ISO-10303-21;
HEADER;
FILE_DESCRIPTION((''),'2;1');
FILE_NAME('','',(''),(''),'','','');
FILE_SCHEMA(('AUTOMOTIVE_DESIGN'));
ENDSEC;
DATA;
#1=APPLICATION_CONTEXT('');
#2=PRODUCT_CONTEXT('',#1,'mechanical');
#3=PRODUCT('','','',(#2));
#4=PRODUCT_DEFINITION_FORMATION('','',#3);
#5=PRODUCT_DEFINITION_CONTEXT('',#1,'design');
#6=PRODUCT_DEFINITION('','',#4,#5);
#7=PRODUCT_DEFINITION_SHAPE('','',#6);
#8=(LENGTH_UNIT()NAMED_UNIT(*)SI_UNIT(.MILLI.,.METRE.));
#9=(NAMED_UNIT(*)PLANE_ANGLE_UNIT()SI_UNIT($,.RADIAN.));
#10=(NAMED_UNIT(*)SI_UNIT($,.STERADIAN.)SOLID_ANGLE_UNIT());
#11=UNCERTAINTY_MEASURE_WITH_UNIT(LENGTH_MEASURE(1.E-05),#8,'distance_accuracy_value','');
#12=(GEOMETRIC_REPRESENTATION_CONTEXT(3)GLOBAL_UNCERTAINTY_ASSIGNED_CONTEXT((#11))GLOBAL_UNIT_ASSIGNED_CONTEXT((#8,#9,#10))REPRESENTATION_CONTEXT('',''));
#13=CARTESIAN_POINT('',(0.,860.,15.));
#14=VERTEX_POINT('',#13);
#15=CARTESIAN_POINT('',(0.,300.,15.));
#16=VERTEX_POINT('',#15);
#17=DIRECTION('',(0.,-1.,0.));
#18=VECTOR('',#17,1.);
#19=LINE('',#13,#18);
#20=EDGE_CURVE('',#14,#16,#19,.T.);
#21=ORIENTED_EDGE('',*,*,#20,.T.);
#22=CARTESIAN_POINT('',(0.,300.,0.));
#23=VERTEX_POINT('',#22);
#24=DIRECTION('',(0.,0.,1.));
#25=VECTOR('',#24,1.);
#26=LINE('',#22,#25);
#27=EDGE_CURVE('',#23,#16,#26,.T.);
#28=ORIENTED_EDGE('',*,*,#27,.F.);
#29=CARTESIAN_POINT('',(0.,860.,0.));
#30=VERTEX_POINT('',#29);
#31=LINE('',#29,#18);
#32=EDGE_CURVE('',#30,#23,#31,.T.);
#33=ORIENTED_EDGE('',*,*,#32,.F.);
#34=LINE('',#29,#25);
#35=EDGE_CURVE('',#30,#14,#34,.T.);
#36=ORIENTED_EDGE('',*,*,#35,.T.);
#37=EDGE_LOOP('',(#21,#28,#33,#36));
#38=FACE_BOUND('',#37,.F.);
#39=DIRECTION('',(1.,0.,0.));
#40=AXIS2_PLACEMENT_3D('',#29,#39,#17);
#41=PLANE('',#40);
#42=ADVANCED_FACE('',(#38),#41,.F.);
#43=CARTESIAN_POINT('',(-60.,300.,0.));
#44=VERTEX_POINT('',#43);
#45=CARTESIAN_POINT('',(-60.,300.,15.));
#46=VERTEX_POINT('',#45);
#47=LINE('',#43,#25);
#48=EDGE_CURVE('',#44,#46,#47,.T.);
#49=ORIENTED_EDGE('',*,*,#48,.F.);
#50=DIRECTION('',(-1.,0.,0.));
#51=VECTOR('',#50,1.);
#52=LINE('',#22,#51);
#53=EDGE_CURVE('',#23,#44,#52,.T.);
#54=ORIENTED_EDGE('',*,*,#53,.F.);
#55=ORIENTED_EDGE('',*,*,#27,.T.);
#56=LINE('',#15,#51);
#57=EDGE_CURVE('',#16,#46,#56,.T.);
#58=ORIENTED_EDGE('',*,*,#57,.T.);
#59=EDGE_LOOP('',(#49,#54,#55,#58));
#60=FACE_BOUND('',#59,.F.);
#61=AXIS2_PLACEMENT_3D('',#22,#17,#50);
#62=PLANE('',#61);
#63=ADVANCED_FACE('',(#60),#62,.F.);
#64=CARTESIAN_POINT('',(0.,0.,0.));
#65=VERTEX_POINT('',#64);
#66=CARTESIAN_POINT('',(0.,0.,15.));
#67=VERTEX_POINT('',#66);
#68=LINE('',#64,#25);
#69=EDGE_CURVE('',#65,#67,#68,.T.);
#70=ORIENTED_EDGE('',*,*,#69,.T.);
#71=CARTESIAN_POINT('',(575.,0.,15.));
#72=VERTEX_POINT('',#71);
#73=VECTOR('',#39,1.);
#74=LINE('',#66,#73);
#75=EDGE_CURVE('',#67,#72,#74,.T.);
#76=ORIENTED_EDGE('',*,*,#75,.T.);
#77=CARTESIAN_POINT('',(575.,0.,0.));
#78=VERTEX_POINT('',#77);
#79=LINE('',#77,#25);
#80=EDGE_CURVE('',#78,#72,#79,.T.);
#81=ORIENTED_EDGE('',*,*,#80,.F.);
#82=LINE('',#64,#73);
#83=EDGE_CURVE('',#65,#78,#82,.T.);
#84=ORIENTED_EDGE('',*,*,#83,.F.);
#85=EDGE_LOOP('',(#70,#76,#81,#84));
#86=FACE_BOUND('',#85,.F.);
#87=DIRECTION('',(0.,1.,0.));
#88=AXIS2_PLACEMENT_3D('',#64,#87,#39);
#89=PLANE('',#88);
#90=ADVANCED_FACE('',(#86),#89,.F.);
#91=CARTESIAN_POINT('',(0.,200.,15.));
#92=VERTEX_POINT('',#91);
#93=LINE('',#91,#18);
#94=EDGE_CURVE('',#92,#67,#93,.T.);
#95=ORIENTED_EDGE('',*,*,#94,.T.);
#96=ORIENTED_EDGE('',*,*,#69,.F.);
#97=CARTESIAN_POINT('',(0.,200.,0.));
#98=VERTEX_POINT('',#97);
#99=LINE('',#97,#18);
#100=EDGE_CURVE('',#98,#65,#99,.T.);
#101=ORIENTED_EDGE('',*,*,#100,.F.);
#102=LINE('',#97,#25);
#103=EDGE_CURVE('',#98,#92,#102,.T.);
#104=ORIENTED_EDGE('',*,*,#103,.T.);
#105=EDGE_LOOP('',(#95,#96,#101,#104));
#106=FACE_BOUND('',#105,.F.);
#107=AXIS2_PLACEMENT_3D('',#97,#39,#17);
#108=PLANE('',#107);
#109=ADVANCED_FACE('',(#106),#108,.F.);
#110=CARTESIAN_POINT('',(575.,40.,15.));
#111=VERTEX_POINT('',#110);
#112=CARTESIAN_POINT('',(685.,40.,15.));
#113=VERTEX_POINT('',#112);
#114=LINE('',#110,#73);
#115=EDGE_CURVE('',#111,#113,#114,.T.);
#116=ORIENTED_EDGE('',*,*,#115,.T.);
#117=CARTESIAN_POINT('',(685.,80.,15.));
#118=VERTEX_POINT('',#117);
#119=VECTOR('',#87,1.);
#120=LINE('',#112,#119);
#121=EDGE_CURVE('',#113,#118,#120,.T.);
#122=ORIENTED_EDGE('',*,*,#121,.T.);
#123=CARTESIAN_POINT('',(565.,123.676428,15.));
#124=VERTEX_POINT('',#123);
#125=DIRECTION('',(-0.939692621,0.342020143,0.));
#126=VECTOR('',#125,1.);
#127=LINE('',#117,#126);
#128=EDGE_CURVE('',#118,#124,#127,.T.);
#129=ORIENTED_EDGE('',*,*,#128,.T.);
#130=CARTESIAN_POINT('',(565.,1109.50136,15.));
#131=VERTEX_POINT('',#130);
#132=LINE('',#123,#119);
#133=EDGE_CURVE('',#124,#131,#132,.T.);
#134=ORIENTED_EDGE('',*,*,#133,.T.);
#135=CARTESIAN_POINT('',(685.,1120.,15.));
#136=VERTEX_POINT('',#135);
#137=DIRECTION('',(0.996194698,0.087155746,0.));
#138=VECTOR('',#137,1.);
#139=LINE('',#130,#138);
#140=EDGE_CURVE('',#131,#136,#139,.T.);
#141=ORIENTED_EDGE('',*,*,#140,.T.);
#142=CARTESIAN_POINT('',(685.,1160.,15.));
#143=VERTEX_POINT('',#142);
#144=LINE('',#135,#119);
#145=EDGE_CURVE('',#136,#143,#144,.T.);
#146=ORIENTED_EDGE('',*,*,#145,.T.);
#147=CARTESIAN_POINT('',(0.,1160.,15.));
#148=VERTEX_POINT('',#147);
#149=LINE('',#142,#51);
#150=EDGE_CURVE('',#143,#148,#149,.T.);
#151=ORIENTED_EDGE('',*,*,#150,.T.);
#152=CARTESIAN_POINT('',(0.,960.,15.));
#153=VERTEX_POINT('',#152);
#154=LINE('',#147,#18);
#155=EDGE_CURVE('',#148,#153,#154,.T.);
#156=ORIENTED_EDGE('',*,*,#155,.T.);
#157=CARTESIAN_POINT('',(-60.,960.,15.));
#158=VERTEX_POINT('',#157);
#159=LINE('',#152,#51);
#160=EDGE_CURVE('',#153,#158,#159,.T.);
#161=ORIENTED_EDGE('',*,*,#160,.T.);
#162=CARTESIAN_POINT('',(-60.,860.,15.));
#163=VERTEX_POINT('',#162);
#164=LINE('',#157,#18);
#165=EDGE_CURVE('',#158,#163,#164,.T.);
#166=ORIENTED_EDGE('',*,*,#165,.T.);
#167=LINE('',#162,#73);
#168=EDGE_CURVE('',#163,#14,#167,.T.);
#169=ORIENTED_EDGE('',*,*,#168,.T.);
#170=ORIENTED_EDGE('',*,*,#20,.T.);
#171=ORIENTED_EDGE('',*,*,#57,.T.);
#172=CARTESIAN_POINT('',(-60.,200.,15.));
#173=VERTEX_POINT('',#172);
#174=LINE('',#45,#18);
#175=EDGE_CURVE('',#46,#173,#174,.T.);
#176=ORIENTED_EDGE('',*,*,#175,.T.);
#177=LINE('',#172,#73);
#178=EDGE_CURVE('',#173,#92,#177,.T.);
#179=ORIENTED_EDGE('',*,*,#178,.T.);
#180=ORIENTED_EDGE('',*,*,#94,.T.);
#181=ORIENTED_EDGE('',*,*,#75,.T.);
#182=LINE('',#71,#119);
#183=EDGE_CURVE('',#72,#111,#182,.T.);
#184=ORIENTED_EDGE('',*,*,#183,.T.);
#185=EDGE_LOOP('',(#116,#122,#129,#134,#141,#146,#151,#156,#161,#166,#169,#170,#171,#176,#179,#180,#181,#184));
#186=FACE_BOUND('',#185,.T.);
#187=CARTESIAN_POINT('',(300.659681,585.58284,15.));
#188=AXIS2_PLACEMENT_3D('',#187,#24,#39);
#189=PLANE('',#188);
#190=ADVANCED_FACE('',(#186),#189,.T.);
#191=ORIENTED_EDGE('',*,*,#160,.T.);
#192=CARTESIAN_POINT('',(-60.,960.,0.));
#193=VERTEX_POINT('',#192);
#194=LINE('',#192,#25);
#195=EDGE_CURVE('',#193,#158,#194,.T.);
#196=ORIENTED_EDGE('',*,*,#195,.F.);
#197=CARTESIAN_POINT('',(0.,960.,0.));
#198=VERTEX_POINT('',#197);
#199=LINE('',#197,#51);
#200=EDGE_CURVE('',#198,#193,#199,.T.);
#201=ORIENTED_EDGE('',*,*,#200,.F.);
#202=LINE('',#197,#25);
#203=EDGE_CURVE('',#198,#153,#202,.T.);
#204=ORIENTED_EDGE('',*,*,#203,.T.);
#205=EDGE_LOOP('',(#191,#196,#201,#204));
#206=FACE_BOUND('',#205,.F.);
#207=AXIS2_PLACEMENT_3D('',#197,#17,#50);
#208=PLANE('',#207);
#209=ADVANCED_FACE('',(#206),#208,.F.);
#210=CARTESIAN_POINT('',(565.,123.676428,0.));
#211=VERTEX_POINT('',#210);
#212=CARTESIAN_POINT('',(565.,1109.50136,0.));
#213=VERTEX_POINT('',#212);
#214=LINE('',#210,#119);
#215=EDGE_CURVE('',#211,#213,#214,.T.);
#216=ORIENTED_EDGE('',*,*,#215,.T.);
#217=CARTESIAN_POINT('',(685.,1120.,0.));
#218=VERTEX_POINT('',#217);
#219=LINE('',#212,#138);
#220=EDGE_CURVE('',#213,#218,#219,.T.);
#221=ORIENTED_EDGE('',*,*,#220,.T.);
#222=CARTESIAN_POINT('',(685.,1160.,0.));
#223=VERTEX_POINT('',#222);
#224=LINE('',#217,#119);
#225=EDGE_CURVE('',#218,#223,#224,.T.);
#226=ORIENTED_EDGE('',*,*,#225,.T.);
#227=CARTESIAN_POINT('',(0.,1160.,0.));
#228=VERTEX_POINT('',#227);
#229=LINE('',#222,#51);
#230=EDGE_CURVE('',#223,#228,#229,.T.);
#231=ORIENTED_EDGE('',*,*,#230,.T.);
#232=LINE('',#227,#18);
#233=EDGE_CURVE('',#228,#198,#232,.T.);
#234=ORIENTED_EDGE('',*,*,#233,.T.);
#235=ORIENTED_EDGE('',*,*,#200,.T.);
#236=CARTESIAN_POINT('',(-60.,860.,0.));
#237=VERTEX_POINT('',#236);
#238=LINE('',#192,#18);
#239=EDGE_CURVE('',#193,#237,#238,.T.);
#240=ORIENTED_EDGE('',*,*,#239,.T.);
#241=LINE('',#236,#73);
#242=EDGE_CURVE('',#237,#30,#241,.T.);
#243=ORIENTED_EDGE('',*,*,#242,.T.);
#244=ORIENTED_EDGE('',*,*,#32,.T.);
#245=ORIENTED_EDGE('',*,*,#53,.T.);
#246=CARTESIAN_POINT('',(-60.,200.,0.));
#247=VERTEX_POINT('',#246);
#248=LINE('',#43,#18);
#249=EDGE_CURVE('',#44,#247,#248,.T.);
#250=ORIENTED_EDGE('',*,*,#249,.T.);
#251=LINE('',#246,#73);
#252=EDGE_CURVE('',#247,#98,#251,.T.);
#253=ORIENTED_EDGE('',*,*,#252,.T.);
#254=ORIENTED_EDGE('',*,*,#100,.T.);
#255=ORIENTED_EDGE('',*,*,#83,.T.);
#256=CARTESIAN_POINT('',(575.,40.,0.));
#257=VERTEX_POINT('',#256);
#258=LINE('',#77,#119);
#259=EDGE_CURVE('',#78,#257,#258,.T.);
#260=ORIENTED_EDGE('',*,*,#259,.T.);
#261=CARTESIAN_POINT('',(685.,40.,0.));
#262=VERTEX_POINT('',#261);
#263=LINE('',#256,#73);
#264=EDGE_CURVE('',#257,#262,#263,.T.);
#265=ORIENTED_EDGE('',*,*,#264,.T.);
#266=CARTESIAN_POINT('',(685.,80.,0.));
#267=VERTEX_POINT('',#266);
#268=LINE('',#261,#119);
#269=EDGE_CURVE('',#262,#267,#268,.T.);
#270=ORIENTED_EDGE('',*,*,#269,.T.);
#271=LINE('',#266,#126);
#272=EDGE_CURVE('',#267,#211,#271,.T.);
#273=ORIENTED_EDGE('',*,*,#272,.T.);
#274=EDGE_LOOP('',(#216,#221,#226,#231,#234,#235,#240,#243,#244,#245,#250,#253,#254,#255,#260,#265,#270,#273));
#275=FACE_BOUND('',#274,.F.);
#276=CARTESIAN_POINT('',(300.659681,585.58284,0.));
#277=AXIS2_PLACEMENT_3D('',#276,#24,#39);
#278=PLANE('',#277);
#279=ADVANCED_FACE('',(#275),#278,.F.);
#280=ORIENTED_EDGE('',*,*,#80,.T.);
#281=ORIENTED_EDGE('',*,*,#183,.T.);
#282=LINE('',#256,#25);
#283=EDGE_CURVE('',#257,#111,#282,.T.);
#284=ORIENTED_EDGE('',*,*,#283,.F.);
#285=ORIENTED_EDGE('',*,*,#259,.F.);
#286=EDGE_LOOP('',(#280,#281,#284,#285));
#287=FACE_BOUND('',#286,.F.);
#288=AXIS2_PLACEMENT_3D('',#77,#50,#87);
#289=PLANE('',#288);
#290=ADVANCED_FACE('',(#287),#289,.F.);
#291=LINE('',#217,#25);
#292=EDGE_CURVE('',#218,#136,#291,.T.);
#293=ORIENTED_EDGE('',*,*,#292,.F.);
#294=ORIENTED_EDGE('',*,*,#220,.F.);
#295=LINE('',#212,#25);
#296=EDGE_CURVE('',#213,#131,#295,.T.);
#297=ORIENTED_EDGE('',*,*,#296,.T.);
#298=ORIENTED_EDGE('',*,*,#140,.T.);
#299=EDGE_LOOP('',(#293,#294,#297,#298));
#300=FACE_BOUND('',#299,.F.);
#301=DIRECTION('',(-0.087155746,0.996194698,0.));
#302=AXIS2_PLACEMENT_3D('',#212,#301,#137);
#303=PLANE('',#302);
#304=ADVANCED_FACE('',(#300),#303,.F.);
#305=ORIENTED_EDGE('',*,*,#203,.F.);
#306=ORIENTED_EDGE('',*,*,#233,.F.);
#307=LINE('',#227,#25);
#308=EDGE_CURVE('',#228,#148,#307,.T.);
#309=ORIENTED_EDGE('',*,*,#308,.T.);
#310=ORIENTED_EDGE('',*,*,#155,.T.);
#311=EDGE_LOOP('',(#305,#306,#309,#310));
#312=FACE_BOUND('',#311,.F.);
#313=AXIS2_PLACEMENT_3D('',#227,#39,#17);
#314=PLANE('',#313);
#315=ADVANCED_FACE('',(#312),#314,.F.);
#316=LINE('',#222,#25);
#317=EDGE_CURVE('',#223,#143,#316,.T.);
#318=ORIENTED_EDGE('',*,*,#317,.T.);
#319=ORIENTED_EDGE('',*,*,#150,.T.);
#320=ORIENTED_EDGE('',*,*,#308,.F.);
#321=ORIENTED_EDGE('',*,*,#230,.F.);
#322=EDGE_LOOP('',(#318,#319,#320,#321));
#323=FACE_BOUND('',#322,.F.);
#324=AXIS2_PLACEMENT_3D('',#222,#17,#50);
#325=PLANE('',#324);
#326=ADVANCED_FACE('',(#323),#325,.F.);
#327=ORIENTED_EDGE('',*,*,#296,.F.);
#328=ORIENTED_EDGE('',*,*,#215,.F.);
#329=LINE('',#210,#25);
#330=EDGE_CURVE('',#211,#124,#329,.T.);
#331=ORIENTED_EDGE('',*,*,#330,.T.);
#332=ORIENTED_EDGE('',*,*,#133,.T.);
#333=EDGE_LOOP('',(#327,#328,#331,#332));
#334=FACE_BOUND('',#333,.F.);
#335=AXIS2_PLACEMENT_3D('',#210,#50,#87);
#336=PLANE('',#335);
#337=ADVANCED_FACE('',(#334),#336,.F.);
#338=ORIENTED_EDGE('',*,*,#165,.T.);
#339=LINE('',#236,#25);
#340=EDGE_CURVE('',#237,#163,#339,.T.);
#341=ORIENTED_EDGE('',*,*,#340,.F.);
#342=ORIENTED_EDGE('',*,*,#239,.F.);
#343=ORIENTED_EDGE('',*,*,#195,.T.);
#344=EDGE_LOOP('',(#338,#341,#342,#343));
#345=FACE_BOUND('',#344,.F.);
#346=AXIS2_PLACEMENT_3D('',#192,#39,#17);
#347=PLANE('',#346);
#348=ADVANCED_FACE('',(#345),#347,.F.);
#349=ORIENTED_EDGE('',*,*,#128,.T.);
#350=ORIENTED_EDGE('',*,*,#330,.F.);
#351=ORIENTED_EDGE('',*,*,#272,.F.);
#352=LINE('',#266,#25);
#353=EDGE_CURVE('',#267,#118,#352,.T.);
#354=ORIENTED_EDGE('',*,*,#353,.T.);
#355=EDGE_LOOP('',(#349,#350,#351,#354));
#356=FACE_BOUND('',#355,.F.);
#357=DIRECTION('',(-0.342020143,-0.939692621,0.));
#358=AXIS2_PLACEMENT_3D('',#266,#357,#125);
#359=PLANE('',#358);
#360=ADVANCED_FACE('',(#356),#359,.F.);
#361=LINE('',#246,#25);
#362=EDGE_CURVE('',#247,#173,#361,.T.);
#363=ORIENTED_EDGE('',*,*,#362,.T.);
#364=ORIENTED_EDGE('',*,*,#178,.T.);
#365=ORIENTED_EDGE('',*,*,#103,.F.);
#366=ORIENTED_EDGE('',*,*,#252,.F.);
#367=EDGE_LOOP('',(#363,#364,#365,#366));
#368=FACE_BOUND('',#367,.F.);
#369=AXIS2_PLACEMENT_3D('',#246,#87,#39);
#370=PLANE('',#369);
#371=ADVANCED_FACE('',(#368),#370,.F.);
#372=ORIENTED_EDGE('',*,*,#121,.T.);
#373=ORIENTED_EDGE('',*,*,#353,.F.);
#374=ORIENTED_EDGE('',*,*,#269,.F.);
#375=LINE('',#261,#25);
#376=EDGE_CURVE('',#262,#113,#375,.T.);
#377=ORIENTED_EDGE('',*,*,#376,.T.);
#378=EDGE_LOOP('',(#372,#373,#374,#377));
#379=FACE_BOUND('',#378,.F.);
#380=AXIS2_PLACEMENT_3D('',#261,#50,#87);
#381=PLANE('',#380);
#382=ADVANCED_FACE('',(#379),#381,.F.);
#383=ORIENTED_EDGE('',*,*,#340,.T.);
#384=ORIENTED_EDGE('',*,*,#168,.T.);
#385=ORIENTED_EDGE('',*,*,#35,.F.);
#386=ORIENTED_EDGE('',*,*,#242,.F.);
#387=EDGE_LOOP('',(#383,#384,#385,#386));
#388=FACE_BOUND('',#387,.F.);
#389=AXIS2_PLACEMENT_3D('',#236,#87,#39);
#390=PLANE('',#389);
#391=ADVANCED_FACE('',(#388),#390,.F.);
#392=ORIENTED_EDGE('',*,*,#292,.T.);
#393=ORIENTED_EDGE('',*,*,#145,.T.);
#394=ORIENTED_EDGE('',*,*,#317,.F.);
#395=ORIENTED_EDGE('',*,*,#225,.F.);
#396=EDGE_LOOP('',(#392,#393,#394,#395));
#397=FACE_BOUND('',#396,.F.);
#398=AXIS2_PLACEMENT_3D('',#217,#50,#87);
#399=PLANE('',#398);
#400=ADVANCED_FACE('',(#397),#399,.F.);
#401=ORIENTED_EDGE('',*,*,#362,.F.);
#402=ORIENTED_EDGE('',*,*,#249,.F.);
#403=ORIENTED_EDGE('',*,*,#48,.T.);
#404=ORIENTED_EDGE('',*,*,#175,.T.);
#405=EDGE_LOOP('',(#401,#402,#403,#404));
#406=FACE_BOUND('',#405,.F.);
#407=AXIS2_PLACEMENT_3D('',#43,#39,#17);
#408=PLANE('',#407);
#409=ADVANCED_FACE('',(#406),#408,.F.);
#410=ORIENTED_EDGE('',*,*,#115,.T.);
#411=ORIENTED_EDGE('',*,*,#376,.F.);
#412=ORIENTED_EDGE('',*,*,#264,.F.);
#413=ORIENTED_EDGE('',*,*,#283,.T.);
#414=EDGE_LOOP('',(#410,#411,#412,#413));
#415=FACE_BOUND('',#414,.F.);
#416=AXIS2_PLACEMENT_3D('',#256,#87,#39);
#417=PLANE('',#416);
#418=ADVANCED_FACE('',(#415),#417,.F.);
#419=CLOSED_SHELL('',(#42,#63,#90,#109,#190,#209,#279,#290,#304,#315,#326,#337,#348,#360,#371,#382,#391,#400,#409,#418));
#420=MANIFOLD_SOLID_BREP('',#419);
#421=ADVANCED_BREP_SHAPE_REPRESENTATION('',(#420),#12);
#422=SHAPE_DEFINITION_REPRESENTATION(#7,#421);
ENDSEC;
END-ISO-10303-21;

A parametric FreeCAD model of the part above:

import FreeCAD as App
import Part
import Sketcher

V = App.Vector
Q = App.Units.Quantity

doc = App.newDocument("Part")
params = doc.addObject("Spreadsheet::Sheet", "Params")
for row, (alias, value) in enumerate([
    ("sketch1_width", "575 mm"),
    ("sketch1_width2", "110 mm"),
    ("sketch1_width3", "60 mm"),
    ("sketch1_height", "200 mm"),
    ("sketch1_height2", "40 mm"),
    ("pad1_length", "15 mm"),
], start=1):
    params.set(f"A{row}", alias)
    params.set(f"B{row}", "=" + value)
    params.setAlias(f"B{row}", alias)

body = doc.addObject("PartDesign::Body", "Body")

# Sketch on XY plane
sketch1 = doc.addObject("Sketcher::SketchObject", "Sketch")
body.addObject(sketch1)
sketch1.AttachmentSupport = (doc.XY_Plane, [""])
sketch1.MapMode = "FlatFace"
sketch1.addGeometry(Part.LineSegment(V(0, 200, 0), V(0, 0, 0)), False)
sketch1.addGeometry(Part.LineSegment(V(0, 0, 0), V(575, 0, 0)), False)
sketch1.addGeometry(Part.LineSegment(V(575, 0, 0), V(575, 40, 0)), False)
sketch1.addGeometry(Part.LineSegment(V(575, 40, 0), V(685, 40, 0)), False)
sketch1.addGeometry(Part.LineSegment(V(685, 40, 0), V(685, 80, 0)), False)
sketch1.addGeometry(Part.LineSegment(V(685, 80, 0), V(565, 124, 0)), False)
sketch1.addGeometry(Part.LineSegment(V(565, 124, 0), V(565, 1110, 0)), False)
sketch1.addGeometry(Part.LineSegment(V(565, 1110, 0), V(685, 1120, 0)), False)
sketch1.addGeometry(Part.LineSegment(V(685, 1120, 0), V(685, 1160, 0)), False)
sketch1.addGeometry(Part.LineSegment(V(685, 1160, 0), V(0, 1160, 0)), False)
sketch1.addGeometry(Part.LineSegment(V(0, 1160, 0), V(0, 960, 0)), False)
sketch1.addGeometry(Part.LineSegment(V(0, 960, 0), V(-60, 960, 0)), False)
sketch1.addGeometry(Part.LineSegment(V(-60, 960, 0), V(-60, 860, 0)), False)
sketch1.addGeometry(Part.LineSegment(V(-60, 860, 0), V(0, 860, 0)), False)
sketch1.addGeometry(Part.LineSegment(V(0, 860, 0), V(0, 300, 0)), False)
sketch1.addGeometry(Part.LineSegment(V(0, 300, 0), V(-60, 300, 0)), False)
sketch1.addGeometry(Part.LineSegment(V(-60, 300, 0), V(-60, 200, 0)), False)
sketch1.addGeometry(Part.LineSegment(V(-60, 200, 0), V(0, 200, 0)), False)
sketch1.addConstraint(Sketcher.Constraint("Coincident", 0, 2, 1, 1))
sketch1.addConstraint(Sketcher.Constraint("Coincident", 1, 2, 2, 1))
sketch1.addConstraint(Sketcher.Constraint("Coincident", 2, 2, 3, 1))
sketch1.addConstraint(Sketcher.Constraint("Coincident", 3, 2, 4, 1))
sketch1.addConstraint(Sketcher.Constraint("Coincident", 4, 2, 5, 1))
sketch1.addConstraint(Sketcher.Constraint("Coincident", 5, 2, 6, 1))
sketch1.addConstraint(Sketcher.Constraint("Coincident", 6, 2, 7, 1))
sketch1.addConstraint(Sketcher.Constraint("Coincident", 7, 2, 8, 1))
sketch1.addConstraint(Sketcher.Constraint("Coincident", 8, 2, 9, 1))
sketch1.addConstraint(Sketcher.Constraint("Coincident", 9, 2, 10, 1))
sketch1.addConstraint(Sketcher.Constraint("Coincident", 10, 2, 11, 1))
sketch1.addConstraint(Sketcher.Constraint("Coincident", 11, 2, 12, 1))
sketch1.addConstraint(Sketcher.Constraint("Coincident", 12, 2, 13, 1))
sketch1.addConstraint(Sketcher.Constraint("Coincident", 13, 2, 14, 1))
sketch1.addConstraint(Sketcher.Constraint("Coincident", 14, 2, 15, 1))
sketch1.addConstraint(Sketcher.Constraint("Coincident", 15, 2, 16, 1))
sketch1.addConstraint(Sketcher.Constraint("Coincident", 16, 2, 17, 1))
sketch1.addConstraint(Sketcher.Constraint("Coincident", 17, 2, 0, 1))
sketch1.addConstraint(Sketcher.Constraint("Vertical", 0))
sketch1.addConstraint(Sketcher.Constraint("Horizontal", 1))
sketch1.addConstraint(Sketcher.Constraint("Vertical", 2))
sketch1.addConstraint(Sketcher.Constraint("Horizontal", 3))
sketch1.addConstraint(Sketcher.Constraint("Vertical", 4))
sketch1.addConstraint(Sketcher.Constraint("Vertical", 6))
sketch1.addConstraint(Sketcher.Constraint("Vertical", 8))
sketch1.addConstraint(Sketcher.Constraint("Horizontal", 9))
sketch1.addConstraint(Sketcher.Constraint("Vertical", 10))
sketch1.addConstraint(Sketcher.Constraint("Horizontal", 11))
sketch1.addConstraint(Sketcher.Constraint("Vertical", 12))
sketch1.addConstraint(Sketcher.Constraint("Horizontal", 13))
sketch1.addConstraint(Sketcher.Constraint("Vertical", 14))
sketch1.addConstraint(Sketcher.Constraint("Horizontal", 15))
sketch1.addConstraint(Sketcher.Constraint("Vertical", 16))
sketch1.addConstraint(Sketcher.Constraint("Horizontal", 17))
sketch1.addConstraint(Sketcher.Constraint("Coincident", 0, 2, -1, 1))
sketch1.addConstraint(Sketcher.Constraint("PointOnObject", 9, 2, -2))
sketch1.addConstraint(Sketcher.Constraint("PointOnObject", 13, 2, -2))
sketch1.addConstraint(Sketcher.Constraint("Vertical", 4, 2, 7, 2))
sketch1.addConstraint(Sketcher.Constraint("Vertical", 12, 2, 15, 2))
sketch1.addConstraint(Sketcher.Constraint("Equal", 2, 4))
sketch1.addConstraint(Sketcher.Constraint("Equal", 4, 8))
sketch1.addConstraint(Sketcher.Constraint("Equal", 0, 10))
sketch1.addConstraint(Sketcher.Constraint("Equal", 12, 16))
sketch1.addConstraint(Sketcher.Constraint("DistanceX", 1, 1, 1, 2, Q("575 mm")))
sketch1.addConstraint(Sketcher.Constraint("DistanceX", 3, 1, 3, 2, Q("110 mm")))
sketch1.addConstraint(Sketcher.Constraint("DistanceX", 11, 2, 11, 1, Q("60 mm")))
sketch1.addConstraint(Sketcher.Constraint("DistanceY", 0, 2, 0, 1, Q("200 mm")))
sketch1.addConstraint(Sketcher.Constraint("DistanceY", 2, 1, 2, 2, Q("40 mm")))
sketch1.addConstraint(Sketcher.Constraint("DistanceY", 12, 2, 12, 1, Q("100 mm")))
sketch1.addConstraint(Sketcher.Constraint("DistanceY", 14, 2, 14, 1, Q("560 mm")))
sketch1.addConstraint(Sketcher.Constraint("Angle", 5, Q("160 deg")))
sketch1.addConstraint(Sketcher.Constraint("Angle", 7, Q("5 deg")))
sketch1.addConstraint(Sketcher.Constraint("DistanceX", -1, 1, 5, 2, Q("565 mm")))
sketch1.setExpression("Constraints[43]", "Params.sketch1_width")
sketch1.setExpression("Constraints[44]", "Params.sketch1_width2")
sketch1.setExpression("Constraints[45]", "Params.sketch1_width3")
sketch1.setExpression("Constraints[46]", "Params.sketch1_height")
sketch1.setExpression("Constraints[47]", "Params.sketch1_height2")
pad1 = doc.addObject("PartDesign::Pad", "Pad")
body.addObject(pad1)
pad1.Profile = sketch1
pad1.setExpression("Length", "Params.pad1_length")

doc.recompute()
